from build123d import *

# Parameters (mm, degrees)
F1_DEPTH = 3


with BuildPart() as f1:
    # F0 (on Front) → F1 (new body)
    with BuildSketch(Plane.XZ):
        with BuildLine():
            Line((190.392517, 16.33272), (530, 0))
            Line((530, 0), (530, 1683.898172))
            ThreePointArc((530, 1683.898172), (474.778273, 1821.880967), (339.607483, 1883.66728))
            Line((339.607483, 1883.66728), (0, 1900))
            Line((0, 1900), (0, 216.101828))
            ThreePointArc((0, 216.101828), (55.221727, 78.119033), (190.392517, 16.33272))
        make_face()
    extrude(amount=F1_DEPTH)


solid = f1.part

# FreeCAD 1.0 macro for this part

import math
import FreeCAD as App
import Part
import Sketcher

V = App.Vector
Q = App.Units.Quantity

doc = App.newDocument("Part")
params = doc.addObject("Spreadsheet::Sheet", "Params")
for row, (alias, value) in enumerate([
    ("sketch1_radius", "200.000001 mm"),
    ("sketch1_length", "340 mm"),
    ("pad1_length", "3 mm"),
], start=1):
    params.set(f"A{row}", alias)
    params.set(f"B{row}", "=" + value)
    params.setAlias(f"B{row}", alias)

body = doc.addObject("PartDesign::Body", "Body")

sketch1 = doc.addObject("Sketcher::SketchObject", "Sketch")
body.addObject(sketch1)
sketch1.AttachmentSupport = (doc.XZ_Plane, [""])
sketch1.MapMode = "FlatFace"
sketch1.addGeometry(Part.LineSegment(V(190, 16, 0), V(530, 0, 0)), False)
sketch1.addGeometry(Part.LineSegment(V(530, 0, 0), V(530, 1684, 0)), False)
sketch1.addGeometry(Part.ArcOfCircle(Part.Circle(V(330, 1684, 0), V(0, 0, 1), 200), math.radians(0), math.radians(87)), False)
sketch1.addGeometry(Part.LineSegment(V(340, 1884, 0), V(0, 1900, 0)), False)
sketch1.addGeometry(Part.LineSegment(V(0, 1900, 0), V(0, 216, 0)), False)
sketch1.addGeometry(Part.ArcOfCircle(Part.Circle(V(200, 216, 0), V(0, 0, 1), 200), math.radians(-180), math.radians(-93)), False)
sketch1.addConstraint(Sketcher.Constraint("Coincident", 0, 2, 1, 1))
sketch1.addConstraint(Sketcher.Constraint("Tangent", 1, 2, 2, 1))
sketch1.addConstraint(Sketcher.Constraint("Tangent", 2, 2, 3, 1))
sketch1.addConstraint(Sketcher.Constraint("Coincident", 3, 2, 4, 1))
sketch1.addConstraint(Sketcher.Constraint("Tangent", 4, 2, 5, 1))
sketch1.addConstraint(Sketcher.Constraint("Tangent", 5, 2, 0, 1))
sketch1.addConstraint(Sketcher.Constraint("Vertical", 1))
sketch1.addConstraint(Sketcher.Constraint("Vertical", 4))
sketch1.addConstraint(Sketcher.Constraint("Equal", 2, 5))
sketch1.addConstraint(Sketcher.Constraint("PointOnObject", 0, 2, -1))
sketch1.addConstraint(Sketcher.Constraint("PointOnObject", 3, 2, -2))
sketch1.addConstraint(Sketcher.Constraint("Parallel", 0, 3))
sketch1.addConstraint(Sketcher.Constraint("Radius", 2, Q("200.000001 mm")))
sketch1.addConstraint(Sketcher.Constraint("Distance", 0, Q("340 mm")))
sketch1.addConstraint(Sketcher.Constraint("DistanceX", -1, 1, 2, 3, Q("329.999999 mm")))
sketch1.addConstraint(Sketcher.Constraint("DistanceY", -1, 1, 3, 2, Q("1900 mm")))
sketch1.setExpression("Constraints[12]", "Params.sketch1_radius")
sketch1.setExpression("Constraints[13]", "Params.sketch1_length")
pad1 = doc.addObject("PartDesign::Pad", "Pad")
body.addObject(pad1)
pad1.Profile = sketch1
pad1.setExpression("Length", "Params.pad1_length")

doc.recompute()
